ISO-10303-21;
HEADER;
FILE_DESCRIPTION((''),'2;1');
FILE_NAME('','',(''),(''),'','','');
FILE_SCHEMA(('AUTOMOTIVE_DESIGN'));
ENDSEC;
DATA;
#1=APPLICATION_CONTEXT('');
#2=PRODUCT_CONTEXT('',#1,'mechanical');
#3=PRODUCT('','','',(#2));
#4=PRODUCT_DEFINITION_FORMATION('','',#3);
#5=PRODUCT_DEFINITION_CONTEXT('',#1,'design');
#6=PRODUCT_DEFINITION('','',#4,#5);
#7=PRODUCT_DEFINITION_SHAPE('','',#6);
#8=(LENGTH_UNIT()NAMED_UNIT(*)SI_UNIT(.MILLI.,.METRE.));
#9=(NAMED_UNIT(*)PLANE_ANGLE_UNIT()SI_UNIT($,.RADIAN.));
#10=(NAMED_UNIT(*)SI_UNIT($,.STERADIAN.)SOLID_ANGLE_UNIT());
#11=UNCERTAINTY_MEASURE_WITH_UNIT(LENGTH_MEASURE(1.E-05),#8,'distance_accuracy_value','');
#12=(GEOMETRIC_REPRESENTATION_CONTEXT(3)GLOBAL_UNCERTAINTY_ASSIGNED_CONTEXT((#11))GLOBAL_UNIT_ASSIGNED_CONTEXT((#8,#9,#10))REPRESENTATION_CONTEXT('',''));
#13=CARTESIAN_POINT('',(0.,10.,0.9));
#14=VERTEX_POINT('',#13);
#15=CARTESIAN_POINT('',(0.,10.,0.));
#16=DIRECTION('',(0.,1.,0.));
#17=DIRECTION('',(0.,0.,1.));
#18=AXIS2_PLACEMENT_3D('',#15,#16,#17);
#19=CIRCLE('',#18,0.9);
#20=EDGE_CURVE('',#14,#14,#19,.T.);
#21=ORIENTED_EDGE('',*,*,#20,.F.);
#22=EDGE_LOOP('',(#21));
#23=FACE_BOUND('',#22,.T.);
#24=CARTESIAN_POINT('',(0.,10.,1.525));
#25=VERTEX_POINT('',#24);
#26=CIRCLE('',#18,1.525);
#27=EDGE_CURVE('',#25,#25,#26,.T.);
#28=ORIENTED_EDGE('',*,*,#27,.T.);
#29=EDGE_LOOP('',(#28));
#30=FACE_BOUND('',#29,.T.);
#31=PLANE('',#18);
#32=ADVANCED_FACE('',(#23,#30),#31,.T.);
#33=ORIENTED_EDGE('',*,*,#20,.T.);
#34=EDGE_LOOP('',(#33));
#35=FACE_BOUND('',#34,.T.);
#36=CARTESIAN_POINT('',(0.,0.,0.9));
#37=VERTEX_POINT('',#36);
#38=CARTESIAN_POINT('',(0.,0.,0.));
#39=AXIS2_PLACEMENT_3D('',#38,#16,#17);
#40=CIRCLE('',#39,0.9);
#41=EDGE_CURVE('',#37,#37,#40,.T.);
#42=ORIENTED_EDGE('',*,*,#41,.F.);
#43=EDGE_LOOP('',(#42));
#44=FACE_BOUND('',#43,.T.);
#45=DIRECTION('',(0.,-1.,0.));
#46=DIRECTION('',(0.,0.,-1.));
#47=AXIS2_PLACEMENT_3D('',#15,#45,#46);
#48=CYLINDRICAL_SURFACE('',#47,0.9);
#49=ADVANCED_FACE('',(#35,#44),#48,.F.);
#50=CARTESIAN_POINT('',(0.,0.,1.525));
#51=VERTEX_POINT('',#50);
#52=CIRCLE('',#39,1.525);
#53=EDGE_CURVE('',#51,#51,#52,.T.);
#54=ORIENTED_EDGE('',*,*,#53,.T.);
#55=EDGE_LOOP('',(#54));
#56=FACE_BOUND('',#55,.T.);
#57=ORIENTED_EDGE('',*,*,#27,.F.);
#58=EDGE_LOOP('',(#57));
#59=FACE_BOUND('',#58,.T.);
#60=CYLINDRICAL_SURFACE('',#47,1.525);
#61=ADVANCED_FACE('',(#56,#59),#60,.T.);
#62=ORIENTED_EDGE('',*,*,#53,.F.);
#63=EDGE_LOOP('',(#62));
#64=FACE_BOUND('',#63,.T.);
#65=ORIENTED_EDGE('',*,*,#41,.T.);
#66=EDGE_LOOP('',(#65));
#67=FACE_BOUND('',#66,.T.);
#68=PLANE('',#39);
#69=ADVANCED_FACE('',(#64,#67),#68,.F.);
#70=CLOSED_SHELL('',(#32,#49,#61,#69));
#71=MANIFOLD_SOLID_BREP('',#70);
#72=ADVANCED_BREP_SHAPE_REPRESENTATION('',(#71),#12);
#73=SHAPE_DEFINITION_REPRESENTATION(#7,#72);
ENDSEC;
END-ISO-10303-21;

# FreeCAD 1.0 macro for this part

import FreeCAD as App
import Part
import Sketcher

V = App.Vector
Q = App.Units.Quantity

doc = App.newDocument("Part")
body = doc.addObject("PartDesign::Body", "Body")

sketch1 = doc.addObject("Sketcher::SketchObject", "Sketch")
body.addObject(sketch1)
sketch1.AttachmentSupport = (doc.XZ_Plane, [""])
sketch1.MapMode = "FlatFace"
sketch1.addGeometry([
    Part.Circle(V(0, 0, 0), V(0, 0, 1), 1.525),
    Part.Circle(V(0, 0, 0), V(0, 0, 1), 0.9),
], False)
sketch1.addConstraint([
    Sketcher.Constraint("Coincident", 0, 3, -1, 1),
    Sketcher.Constraint("Coincident", 1, 3, -1, 1),
    Sketcher.Constraint("Diameter", 1, Q("1.8 mm")),
    Sketcher.Constraint("Diameter", 0, Q("3.05 mm")),
])
pad1 = doc.addObject("PartDesign::Pad", "Pad")
body.addObject(pad1)
pad1.Profile = sketch1
pad1.Length = 10
pad1.Reversed = True

doc.recompute()
